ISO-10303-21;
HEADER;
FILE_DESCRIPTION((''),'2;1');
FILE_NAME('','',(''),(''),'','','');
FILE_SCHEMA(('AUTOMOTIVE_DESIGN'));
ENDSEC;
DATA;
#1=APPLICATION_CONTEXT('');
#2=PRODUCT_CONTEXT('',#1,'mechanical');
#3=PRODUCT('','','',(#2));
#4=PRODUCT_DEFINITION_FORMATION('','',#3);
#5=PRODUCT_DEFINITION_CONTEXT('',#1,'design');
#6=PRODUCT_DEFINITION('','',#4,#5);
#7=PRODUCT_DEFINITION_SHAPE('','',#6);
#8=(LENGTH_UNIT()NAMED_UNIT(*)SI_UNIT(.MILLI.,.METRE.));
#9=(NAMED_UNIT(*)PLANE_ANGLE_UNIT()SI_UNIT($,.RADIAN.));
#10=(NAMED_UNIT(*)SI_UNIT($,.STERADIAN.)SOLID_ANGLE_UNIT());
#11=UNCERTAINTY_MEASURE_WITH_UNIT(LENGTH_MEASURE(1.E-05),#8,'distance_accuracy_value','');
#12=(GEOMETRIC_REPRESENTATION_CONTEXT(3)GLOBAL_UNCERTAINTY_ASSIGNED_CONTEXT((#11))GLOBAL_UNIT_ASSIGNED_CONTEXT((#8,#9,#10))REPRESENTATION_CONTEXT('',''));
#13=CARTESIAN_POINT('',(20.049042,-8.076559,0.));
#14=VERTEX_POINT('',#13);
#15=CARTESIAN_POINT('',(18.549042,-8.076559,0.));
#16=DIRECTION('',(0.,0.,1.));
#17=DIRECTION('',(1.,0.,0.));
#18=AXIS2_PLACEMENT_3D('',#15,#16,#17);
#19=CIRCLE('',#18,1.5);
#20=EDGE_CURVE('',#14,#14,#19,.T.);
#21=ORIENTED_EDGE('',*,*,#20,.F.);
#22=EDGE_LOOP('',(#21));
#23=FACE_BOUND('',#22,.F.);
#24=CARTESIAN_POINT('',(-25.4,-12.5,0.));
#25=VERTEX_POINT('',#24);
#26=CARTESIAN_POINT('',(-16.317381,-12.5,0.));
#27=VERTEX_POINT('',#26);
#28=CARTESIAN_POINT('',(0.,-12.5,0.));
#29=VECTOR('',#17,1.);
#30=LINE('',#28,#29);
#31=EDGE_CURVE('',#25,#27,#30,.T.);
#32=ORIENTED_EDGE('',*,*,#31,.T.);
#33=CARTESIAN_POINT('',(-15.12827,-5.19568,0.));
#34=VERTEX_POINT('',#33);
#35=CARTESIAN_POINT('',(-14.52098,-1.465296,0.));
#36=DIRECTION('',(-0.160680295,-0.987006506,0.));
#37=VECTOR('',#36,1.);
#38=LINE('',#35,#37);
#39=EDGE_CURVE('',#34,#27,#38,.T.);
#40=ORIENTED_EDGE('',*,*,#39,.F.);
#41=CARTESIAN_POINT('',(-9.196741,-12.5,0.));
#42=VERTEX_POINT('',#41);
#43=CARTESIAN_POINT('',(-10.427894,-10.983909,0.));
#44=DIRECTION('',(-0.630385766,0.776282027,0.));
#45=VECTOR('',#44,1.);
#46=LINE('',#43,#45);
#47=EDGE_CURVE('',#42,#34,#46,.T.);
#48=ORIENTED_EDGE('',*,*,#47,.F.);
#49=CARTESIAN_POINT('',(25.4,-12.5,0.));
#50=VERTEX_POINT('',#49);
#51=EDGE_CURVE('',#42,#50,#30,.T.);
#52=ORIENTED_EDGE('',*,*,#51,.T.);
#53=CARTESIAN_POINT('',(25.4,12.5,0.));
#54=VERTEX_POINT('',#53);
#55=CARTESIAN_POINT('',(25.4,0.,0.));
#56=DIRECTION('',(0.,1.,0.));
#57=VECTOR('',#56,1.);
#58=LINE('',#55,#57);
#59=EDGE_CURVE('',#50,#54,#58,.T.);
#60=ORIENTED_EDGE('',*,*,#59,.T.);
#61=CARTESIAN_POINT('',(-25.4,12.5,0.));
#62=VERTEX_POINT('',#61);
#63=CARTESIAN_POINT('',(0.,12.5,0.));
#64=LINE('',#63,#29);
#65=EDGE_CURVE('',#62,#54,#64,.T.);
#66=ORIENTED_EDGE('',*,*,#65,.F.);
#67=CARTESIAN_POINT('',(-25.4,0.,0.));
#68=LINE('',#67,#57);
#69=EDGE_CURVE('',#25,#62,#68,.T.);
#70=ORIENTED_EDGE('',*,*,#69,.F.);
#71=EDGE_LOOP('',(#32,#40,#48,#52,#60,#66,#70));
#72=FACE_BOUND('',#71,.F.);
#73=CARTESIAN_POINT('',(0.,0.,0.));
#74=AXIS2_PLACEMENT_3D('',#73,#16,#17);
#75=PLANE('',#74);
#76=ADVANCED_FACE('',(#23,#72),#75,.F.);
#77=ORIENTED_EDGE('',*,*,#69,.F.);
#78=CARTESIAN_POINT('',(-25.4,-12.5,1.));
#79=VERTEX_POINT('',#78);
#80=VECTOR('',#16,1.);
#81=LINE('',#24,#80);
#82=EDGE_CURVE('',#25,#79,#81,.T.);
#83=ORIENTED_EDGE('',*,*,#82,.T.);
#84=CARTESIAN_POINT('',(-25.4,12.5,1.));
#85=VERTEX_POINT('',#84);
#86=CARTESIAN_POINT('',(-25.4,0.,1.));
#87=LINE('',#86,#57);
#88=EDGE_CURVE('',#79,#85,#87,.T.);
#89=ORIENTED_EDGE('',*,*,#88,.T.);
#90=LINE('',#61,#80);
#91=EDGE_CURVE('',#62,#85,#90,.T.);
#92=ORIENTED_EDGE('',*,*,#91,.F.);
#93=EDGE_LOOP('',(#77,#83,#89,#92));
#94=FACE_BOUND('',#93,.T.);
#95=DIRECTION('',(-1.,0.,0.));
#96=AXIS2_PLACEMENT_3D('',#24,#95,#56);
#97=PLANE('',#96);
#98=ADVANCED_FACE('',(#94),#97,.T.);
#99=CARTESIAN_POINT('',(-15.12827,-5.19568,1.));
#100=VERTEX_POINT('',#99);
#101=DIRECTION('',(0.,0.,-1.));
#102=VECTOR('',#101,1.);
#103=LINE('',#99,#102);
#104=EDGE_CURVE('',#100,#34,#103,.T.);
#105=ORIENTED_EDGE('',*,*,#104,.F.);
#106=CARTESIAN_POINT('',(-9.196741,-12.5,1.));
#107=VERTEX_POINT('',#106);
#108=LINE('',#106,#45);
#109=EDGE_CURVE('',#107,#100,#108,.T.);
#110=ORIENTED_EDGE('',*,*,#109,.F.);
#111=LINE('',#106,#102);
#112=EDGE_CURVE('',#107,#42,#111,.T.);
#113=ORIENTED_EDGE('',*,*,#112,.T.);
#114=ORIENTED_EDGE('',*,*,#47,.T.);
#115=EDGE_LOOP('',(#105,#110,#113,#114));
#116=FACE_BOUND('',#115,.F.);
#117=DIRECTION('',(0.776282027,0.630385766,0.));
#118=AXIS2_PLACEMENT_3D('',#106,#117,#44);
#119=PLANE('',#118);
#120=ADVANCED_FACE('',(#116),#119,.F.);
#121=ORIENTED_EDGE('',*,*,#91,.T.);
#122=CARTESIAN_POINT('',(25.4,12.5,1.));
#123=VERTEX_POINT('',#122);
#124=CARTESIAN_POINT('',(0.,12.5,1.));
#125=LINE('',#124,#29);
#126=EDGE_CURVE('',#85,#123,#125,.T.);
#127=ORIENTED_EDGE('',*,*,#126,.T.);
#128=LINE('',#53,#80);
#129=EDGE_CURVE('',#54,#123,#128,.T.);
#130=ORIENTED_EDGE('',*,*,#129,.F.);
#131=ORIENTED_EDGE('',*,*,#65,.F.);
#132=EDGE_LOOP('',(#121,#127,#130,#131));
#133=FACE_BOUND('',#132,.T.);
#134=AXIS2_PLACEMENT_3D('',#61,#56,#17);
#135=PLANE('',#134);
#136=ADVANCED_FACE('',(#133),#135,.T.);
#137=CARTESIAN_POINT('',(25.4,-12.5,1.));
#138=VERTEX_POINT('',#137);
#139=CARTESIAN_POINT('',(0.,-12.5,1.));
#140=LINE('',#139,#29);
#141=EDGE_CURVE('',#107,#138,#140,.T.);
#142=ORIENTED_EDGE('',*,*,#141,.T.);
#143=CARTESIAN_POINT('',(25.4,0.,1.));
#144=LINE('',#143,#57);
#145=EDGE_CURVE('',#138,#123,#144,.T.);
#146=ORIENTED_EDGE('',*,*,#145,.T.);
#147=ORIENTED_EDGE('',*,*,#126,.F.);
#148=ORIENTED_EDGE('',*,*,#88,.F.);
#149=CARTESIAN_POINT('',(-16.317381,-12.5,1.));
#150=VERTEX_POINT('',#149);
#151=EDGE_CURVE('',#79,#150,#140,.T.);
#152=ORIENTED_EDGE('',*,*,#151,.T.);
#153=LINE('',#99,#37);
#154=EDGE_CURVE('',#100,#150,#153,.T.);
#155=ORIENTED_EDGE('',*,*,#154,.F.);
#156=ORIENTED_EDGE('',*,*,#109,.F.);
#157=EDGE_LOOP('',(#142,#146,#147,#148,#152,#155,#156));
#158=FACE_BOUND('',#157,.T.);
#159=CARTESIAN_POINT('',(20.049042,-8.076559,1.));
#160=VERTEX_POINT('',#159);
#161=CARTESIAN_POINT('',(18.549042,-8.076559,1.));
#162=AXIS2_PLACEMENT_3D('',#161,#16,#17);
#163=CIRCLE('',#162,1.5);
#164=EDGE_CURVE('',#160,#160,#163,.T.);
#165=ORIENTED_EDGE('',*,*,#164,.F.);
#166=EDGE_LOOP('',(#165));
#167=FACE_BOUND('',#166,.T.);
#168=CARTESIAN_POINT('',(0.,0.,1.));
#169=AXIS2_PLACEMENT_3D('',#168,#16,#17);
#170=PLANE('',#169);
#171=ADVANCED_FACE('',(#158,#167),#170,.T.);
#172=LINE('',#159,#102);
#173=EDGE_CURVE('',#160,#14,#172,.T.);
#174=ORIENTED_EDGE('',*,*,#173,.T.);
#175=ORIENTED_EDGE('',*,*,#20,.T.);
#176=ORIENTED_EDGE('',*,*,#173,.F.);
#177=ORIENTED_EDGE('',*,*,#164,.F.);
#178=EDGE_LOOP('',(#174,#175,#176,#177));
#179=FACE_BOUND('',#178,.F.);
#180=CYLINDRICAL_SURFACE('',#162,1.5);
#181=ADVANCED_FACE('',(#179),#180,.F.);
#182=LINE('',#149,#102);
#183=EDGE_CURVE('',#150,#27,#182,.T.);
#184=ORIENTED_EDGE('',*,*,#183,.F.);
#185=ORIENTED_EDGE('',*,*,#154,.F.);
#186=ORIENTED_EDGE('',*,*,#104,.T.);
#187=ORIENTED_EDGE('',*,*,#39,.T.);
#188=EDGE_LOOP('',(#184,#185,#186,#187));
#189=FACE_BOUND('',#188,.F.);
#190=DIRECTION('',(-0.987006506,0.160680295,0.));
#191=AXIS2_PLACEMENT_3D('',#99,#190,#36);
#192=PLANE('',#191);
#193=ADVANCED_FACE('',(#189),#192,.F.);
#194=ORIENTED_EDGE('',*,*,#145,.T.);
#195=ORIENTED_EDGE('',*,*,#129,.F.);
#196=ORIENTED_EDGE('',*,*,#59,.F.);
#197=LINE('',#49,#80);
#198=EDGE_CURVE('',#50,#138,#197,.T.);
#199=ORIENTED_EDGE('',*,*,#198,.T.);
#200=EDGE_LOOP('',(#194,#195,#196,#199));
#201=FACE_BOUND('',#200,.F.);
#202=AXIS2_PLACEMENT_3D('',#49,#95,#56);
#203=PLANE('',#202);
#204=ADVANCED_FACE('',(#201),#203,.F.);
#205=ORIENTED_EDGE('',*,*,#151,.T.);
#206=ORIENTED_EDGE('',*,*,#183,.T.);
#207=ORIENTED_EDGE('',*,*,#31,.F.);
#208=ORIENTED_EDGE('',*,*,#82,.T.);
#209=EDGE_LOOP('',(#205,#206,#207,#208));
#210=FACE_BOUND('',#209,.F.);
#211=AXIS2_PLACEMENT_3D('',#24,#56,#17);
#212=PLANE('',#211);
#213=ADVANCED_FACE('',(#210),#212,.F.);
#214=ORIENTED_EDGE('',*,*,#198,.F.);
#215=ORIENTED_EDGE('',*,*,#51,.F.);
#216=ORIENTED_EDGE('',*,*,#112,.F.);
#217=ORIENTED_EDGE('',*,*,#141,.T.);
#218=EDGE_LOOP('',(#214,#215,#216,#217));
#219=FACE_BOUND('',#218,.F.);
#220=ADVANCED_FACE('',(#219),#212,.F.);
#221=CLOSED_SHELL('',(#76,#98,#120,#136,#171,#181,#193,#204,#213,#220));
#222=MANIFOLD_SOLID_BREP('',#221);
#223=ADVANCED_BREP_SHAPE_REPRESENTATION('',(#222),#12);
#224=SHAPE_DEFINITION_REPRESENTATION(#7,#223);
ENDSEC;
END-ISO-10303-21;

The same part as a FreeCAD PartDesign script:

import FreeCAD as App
import Part
import Sketcher


def add_polygon(sketch, points):
    """Adds a closed chain of lines whose ends are joined by coincident constraints."""
    first, n = sketch.GeometryCount, len(points)
    for a, b in zip(points, points[1:] + points[:1]):
        sketch.addGeometry(Part.LineSegment(App.Vector(*a, 0), App.Vector(*b, 0)), False)
    for i in range(n):
        sketch.addConstraint(Sketcher.Constraint("Coincident", first + i, 2, first + (i + 1) % n, 1))

doc = App.newDocument("Part")
params = doc.addObject("Spreadsheet::Sheet", "Params")
for row, (alias, value) in enumerate([
    ("sketch1_height", "25 mm"),
    ("sketch1_width", "50.8 mm"),
    ("pad1_length", "1 mm"),
    ("sketch2_diameter", "3 mm"),
    ("pocket1_length", "25 mm"),
    ("pocket2_length", "25 mm"),
], start=1):
    params.set(f"A{row}", alias)
    params.set(f"B{row}", "=" + value)
    params.setAlias(f"B{row}", alias)

body = doc.addObject("PartDesign::Body", "Body")

sketch1 = body.newObject("Sketcher::SketchObject", "Sketch")
sketch1.AttachmentSupport = (doc.getObject("XY_Plane"), [""])
sketch1.MapMode = "FlatFace"
add_polygon(sketch1, [(-25, 12), (-25, -12), (25, -12), (25, 12)])
sketch1.addConstraint([
    Sketcher.Constraint("Vertical", 0),
    Sketcher.Constraint("Horizontal", 1),
    Sketcher.Constraint("Vertical", 2),
    Sketcher.Constraint("Horizontal", 3),
    Sketcher.Constraint("Symmetric", 0, 2, 2, 2, -1, 1),
    Sketcher.Constraint("DistanceY", 0, 2, 0, 1, 25.0),
    Sketcher.Constraint("DistanceX", 1, 1, 1, 2, 50.8),
])
sketch1.setExpression("Constraints[9]", "Params.sketch1_height")
sketch1.setExpression("Constraints[10]", "Params.sketch1_width")
pad1 = body.newObject("PartDesign::Pad", "Pad")
pad1.Profile = sketch1
pad1.setExpression("Length", "Params.pad1_length")

sketch2 = body.newObject("Sketcher::SketchObject", "Sketch001")
sketch2.AttachmentSupport = (doc.getObject("XY_Plane"), [""])
sketch2.MapMode = "FlatFace"
sketch2.AttachmentOffset = App.Placement(App.Vector(0, 0, 1), App.Rotation())
sketch2.addGeometry(Part.Circle(App.Vector(18.5, -8.1, 0), App.Vector(0, 0, 1), 1.5), False)
sketch2.addConstraint([
    Sketcher.Constraint("Diameter", 0, 3.0),
    Sketcher.Constraint("DistanceX", -1, 1, 0, 3, 18.549042),
    Sketcher.Constraint("DistanceY", 0, 3, -1, 1, 8.076559),
])
sketch2.setExpression("Constraints[0]", "Params.sketch2_diameter")
pocket1 = body.newObject("PartDesign::Pocket", "Pocket")
pocket1.Profile = sketch2
pocket1.setExpression("Length", "Params.pocket1_length")

sketch3 = body.newObject("Sketcher::SketchObject", "Sketch002")
sketch3.AttachmentSupport = (doc.getObject("XY_Plane"), [""])
sketch3.MapMode = "FlatFace"
sketch3.AttachmentOffset = App.Placement(App.Vector(0, 0, 1), App.Rotation())
add_polygon(sketch3, [(-15, -5), (-16, -12), (-9, -12)])
sketch3.addConstraint([
    Sketcher.Constraint("Horizontal", 1),
    Sketcher.Constraint("DistanceY", 0, 2, -1, 1, 12.5),
    Sketcher.Constraint("DistanceX", 1, 1, 1, 2, 7.12064),
    Sketcher.Constraint("Distance", 0, 7.400478),
    Sketcher.Constraint("DistanceX", 0, 2, -1, 1, 16.317381),
    Sketcher.Constraint("DistanceX", 2, 2, -1, 1, 15.12827),
])
pocket2 = body.newObject("PartDesign::Pocket", "Pocket001")
pocket2.Profile = sketch3
pocket2.setExpression("Length", "Params.pocket2_length")

doc.recompute()
